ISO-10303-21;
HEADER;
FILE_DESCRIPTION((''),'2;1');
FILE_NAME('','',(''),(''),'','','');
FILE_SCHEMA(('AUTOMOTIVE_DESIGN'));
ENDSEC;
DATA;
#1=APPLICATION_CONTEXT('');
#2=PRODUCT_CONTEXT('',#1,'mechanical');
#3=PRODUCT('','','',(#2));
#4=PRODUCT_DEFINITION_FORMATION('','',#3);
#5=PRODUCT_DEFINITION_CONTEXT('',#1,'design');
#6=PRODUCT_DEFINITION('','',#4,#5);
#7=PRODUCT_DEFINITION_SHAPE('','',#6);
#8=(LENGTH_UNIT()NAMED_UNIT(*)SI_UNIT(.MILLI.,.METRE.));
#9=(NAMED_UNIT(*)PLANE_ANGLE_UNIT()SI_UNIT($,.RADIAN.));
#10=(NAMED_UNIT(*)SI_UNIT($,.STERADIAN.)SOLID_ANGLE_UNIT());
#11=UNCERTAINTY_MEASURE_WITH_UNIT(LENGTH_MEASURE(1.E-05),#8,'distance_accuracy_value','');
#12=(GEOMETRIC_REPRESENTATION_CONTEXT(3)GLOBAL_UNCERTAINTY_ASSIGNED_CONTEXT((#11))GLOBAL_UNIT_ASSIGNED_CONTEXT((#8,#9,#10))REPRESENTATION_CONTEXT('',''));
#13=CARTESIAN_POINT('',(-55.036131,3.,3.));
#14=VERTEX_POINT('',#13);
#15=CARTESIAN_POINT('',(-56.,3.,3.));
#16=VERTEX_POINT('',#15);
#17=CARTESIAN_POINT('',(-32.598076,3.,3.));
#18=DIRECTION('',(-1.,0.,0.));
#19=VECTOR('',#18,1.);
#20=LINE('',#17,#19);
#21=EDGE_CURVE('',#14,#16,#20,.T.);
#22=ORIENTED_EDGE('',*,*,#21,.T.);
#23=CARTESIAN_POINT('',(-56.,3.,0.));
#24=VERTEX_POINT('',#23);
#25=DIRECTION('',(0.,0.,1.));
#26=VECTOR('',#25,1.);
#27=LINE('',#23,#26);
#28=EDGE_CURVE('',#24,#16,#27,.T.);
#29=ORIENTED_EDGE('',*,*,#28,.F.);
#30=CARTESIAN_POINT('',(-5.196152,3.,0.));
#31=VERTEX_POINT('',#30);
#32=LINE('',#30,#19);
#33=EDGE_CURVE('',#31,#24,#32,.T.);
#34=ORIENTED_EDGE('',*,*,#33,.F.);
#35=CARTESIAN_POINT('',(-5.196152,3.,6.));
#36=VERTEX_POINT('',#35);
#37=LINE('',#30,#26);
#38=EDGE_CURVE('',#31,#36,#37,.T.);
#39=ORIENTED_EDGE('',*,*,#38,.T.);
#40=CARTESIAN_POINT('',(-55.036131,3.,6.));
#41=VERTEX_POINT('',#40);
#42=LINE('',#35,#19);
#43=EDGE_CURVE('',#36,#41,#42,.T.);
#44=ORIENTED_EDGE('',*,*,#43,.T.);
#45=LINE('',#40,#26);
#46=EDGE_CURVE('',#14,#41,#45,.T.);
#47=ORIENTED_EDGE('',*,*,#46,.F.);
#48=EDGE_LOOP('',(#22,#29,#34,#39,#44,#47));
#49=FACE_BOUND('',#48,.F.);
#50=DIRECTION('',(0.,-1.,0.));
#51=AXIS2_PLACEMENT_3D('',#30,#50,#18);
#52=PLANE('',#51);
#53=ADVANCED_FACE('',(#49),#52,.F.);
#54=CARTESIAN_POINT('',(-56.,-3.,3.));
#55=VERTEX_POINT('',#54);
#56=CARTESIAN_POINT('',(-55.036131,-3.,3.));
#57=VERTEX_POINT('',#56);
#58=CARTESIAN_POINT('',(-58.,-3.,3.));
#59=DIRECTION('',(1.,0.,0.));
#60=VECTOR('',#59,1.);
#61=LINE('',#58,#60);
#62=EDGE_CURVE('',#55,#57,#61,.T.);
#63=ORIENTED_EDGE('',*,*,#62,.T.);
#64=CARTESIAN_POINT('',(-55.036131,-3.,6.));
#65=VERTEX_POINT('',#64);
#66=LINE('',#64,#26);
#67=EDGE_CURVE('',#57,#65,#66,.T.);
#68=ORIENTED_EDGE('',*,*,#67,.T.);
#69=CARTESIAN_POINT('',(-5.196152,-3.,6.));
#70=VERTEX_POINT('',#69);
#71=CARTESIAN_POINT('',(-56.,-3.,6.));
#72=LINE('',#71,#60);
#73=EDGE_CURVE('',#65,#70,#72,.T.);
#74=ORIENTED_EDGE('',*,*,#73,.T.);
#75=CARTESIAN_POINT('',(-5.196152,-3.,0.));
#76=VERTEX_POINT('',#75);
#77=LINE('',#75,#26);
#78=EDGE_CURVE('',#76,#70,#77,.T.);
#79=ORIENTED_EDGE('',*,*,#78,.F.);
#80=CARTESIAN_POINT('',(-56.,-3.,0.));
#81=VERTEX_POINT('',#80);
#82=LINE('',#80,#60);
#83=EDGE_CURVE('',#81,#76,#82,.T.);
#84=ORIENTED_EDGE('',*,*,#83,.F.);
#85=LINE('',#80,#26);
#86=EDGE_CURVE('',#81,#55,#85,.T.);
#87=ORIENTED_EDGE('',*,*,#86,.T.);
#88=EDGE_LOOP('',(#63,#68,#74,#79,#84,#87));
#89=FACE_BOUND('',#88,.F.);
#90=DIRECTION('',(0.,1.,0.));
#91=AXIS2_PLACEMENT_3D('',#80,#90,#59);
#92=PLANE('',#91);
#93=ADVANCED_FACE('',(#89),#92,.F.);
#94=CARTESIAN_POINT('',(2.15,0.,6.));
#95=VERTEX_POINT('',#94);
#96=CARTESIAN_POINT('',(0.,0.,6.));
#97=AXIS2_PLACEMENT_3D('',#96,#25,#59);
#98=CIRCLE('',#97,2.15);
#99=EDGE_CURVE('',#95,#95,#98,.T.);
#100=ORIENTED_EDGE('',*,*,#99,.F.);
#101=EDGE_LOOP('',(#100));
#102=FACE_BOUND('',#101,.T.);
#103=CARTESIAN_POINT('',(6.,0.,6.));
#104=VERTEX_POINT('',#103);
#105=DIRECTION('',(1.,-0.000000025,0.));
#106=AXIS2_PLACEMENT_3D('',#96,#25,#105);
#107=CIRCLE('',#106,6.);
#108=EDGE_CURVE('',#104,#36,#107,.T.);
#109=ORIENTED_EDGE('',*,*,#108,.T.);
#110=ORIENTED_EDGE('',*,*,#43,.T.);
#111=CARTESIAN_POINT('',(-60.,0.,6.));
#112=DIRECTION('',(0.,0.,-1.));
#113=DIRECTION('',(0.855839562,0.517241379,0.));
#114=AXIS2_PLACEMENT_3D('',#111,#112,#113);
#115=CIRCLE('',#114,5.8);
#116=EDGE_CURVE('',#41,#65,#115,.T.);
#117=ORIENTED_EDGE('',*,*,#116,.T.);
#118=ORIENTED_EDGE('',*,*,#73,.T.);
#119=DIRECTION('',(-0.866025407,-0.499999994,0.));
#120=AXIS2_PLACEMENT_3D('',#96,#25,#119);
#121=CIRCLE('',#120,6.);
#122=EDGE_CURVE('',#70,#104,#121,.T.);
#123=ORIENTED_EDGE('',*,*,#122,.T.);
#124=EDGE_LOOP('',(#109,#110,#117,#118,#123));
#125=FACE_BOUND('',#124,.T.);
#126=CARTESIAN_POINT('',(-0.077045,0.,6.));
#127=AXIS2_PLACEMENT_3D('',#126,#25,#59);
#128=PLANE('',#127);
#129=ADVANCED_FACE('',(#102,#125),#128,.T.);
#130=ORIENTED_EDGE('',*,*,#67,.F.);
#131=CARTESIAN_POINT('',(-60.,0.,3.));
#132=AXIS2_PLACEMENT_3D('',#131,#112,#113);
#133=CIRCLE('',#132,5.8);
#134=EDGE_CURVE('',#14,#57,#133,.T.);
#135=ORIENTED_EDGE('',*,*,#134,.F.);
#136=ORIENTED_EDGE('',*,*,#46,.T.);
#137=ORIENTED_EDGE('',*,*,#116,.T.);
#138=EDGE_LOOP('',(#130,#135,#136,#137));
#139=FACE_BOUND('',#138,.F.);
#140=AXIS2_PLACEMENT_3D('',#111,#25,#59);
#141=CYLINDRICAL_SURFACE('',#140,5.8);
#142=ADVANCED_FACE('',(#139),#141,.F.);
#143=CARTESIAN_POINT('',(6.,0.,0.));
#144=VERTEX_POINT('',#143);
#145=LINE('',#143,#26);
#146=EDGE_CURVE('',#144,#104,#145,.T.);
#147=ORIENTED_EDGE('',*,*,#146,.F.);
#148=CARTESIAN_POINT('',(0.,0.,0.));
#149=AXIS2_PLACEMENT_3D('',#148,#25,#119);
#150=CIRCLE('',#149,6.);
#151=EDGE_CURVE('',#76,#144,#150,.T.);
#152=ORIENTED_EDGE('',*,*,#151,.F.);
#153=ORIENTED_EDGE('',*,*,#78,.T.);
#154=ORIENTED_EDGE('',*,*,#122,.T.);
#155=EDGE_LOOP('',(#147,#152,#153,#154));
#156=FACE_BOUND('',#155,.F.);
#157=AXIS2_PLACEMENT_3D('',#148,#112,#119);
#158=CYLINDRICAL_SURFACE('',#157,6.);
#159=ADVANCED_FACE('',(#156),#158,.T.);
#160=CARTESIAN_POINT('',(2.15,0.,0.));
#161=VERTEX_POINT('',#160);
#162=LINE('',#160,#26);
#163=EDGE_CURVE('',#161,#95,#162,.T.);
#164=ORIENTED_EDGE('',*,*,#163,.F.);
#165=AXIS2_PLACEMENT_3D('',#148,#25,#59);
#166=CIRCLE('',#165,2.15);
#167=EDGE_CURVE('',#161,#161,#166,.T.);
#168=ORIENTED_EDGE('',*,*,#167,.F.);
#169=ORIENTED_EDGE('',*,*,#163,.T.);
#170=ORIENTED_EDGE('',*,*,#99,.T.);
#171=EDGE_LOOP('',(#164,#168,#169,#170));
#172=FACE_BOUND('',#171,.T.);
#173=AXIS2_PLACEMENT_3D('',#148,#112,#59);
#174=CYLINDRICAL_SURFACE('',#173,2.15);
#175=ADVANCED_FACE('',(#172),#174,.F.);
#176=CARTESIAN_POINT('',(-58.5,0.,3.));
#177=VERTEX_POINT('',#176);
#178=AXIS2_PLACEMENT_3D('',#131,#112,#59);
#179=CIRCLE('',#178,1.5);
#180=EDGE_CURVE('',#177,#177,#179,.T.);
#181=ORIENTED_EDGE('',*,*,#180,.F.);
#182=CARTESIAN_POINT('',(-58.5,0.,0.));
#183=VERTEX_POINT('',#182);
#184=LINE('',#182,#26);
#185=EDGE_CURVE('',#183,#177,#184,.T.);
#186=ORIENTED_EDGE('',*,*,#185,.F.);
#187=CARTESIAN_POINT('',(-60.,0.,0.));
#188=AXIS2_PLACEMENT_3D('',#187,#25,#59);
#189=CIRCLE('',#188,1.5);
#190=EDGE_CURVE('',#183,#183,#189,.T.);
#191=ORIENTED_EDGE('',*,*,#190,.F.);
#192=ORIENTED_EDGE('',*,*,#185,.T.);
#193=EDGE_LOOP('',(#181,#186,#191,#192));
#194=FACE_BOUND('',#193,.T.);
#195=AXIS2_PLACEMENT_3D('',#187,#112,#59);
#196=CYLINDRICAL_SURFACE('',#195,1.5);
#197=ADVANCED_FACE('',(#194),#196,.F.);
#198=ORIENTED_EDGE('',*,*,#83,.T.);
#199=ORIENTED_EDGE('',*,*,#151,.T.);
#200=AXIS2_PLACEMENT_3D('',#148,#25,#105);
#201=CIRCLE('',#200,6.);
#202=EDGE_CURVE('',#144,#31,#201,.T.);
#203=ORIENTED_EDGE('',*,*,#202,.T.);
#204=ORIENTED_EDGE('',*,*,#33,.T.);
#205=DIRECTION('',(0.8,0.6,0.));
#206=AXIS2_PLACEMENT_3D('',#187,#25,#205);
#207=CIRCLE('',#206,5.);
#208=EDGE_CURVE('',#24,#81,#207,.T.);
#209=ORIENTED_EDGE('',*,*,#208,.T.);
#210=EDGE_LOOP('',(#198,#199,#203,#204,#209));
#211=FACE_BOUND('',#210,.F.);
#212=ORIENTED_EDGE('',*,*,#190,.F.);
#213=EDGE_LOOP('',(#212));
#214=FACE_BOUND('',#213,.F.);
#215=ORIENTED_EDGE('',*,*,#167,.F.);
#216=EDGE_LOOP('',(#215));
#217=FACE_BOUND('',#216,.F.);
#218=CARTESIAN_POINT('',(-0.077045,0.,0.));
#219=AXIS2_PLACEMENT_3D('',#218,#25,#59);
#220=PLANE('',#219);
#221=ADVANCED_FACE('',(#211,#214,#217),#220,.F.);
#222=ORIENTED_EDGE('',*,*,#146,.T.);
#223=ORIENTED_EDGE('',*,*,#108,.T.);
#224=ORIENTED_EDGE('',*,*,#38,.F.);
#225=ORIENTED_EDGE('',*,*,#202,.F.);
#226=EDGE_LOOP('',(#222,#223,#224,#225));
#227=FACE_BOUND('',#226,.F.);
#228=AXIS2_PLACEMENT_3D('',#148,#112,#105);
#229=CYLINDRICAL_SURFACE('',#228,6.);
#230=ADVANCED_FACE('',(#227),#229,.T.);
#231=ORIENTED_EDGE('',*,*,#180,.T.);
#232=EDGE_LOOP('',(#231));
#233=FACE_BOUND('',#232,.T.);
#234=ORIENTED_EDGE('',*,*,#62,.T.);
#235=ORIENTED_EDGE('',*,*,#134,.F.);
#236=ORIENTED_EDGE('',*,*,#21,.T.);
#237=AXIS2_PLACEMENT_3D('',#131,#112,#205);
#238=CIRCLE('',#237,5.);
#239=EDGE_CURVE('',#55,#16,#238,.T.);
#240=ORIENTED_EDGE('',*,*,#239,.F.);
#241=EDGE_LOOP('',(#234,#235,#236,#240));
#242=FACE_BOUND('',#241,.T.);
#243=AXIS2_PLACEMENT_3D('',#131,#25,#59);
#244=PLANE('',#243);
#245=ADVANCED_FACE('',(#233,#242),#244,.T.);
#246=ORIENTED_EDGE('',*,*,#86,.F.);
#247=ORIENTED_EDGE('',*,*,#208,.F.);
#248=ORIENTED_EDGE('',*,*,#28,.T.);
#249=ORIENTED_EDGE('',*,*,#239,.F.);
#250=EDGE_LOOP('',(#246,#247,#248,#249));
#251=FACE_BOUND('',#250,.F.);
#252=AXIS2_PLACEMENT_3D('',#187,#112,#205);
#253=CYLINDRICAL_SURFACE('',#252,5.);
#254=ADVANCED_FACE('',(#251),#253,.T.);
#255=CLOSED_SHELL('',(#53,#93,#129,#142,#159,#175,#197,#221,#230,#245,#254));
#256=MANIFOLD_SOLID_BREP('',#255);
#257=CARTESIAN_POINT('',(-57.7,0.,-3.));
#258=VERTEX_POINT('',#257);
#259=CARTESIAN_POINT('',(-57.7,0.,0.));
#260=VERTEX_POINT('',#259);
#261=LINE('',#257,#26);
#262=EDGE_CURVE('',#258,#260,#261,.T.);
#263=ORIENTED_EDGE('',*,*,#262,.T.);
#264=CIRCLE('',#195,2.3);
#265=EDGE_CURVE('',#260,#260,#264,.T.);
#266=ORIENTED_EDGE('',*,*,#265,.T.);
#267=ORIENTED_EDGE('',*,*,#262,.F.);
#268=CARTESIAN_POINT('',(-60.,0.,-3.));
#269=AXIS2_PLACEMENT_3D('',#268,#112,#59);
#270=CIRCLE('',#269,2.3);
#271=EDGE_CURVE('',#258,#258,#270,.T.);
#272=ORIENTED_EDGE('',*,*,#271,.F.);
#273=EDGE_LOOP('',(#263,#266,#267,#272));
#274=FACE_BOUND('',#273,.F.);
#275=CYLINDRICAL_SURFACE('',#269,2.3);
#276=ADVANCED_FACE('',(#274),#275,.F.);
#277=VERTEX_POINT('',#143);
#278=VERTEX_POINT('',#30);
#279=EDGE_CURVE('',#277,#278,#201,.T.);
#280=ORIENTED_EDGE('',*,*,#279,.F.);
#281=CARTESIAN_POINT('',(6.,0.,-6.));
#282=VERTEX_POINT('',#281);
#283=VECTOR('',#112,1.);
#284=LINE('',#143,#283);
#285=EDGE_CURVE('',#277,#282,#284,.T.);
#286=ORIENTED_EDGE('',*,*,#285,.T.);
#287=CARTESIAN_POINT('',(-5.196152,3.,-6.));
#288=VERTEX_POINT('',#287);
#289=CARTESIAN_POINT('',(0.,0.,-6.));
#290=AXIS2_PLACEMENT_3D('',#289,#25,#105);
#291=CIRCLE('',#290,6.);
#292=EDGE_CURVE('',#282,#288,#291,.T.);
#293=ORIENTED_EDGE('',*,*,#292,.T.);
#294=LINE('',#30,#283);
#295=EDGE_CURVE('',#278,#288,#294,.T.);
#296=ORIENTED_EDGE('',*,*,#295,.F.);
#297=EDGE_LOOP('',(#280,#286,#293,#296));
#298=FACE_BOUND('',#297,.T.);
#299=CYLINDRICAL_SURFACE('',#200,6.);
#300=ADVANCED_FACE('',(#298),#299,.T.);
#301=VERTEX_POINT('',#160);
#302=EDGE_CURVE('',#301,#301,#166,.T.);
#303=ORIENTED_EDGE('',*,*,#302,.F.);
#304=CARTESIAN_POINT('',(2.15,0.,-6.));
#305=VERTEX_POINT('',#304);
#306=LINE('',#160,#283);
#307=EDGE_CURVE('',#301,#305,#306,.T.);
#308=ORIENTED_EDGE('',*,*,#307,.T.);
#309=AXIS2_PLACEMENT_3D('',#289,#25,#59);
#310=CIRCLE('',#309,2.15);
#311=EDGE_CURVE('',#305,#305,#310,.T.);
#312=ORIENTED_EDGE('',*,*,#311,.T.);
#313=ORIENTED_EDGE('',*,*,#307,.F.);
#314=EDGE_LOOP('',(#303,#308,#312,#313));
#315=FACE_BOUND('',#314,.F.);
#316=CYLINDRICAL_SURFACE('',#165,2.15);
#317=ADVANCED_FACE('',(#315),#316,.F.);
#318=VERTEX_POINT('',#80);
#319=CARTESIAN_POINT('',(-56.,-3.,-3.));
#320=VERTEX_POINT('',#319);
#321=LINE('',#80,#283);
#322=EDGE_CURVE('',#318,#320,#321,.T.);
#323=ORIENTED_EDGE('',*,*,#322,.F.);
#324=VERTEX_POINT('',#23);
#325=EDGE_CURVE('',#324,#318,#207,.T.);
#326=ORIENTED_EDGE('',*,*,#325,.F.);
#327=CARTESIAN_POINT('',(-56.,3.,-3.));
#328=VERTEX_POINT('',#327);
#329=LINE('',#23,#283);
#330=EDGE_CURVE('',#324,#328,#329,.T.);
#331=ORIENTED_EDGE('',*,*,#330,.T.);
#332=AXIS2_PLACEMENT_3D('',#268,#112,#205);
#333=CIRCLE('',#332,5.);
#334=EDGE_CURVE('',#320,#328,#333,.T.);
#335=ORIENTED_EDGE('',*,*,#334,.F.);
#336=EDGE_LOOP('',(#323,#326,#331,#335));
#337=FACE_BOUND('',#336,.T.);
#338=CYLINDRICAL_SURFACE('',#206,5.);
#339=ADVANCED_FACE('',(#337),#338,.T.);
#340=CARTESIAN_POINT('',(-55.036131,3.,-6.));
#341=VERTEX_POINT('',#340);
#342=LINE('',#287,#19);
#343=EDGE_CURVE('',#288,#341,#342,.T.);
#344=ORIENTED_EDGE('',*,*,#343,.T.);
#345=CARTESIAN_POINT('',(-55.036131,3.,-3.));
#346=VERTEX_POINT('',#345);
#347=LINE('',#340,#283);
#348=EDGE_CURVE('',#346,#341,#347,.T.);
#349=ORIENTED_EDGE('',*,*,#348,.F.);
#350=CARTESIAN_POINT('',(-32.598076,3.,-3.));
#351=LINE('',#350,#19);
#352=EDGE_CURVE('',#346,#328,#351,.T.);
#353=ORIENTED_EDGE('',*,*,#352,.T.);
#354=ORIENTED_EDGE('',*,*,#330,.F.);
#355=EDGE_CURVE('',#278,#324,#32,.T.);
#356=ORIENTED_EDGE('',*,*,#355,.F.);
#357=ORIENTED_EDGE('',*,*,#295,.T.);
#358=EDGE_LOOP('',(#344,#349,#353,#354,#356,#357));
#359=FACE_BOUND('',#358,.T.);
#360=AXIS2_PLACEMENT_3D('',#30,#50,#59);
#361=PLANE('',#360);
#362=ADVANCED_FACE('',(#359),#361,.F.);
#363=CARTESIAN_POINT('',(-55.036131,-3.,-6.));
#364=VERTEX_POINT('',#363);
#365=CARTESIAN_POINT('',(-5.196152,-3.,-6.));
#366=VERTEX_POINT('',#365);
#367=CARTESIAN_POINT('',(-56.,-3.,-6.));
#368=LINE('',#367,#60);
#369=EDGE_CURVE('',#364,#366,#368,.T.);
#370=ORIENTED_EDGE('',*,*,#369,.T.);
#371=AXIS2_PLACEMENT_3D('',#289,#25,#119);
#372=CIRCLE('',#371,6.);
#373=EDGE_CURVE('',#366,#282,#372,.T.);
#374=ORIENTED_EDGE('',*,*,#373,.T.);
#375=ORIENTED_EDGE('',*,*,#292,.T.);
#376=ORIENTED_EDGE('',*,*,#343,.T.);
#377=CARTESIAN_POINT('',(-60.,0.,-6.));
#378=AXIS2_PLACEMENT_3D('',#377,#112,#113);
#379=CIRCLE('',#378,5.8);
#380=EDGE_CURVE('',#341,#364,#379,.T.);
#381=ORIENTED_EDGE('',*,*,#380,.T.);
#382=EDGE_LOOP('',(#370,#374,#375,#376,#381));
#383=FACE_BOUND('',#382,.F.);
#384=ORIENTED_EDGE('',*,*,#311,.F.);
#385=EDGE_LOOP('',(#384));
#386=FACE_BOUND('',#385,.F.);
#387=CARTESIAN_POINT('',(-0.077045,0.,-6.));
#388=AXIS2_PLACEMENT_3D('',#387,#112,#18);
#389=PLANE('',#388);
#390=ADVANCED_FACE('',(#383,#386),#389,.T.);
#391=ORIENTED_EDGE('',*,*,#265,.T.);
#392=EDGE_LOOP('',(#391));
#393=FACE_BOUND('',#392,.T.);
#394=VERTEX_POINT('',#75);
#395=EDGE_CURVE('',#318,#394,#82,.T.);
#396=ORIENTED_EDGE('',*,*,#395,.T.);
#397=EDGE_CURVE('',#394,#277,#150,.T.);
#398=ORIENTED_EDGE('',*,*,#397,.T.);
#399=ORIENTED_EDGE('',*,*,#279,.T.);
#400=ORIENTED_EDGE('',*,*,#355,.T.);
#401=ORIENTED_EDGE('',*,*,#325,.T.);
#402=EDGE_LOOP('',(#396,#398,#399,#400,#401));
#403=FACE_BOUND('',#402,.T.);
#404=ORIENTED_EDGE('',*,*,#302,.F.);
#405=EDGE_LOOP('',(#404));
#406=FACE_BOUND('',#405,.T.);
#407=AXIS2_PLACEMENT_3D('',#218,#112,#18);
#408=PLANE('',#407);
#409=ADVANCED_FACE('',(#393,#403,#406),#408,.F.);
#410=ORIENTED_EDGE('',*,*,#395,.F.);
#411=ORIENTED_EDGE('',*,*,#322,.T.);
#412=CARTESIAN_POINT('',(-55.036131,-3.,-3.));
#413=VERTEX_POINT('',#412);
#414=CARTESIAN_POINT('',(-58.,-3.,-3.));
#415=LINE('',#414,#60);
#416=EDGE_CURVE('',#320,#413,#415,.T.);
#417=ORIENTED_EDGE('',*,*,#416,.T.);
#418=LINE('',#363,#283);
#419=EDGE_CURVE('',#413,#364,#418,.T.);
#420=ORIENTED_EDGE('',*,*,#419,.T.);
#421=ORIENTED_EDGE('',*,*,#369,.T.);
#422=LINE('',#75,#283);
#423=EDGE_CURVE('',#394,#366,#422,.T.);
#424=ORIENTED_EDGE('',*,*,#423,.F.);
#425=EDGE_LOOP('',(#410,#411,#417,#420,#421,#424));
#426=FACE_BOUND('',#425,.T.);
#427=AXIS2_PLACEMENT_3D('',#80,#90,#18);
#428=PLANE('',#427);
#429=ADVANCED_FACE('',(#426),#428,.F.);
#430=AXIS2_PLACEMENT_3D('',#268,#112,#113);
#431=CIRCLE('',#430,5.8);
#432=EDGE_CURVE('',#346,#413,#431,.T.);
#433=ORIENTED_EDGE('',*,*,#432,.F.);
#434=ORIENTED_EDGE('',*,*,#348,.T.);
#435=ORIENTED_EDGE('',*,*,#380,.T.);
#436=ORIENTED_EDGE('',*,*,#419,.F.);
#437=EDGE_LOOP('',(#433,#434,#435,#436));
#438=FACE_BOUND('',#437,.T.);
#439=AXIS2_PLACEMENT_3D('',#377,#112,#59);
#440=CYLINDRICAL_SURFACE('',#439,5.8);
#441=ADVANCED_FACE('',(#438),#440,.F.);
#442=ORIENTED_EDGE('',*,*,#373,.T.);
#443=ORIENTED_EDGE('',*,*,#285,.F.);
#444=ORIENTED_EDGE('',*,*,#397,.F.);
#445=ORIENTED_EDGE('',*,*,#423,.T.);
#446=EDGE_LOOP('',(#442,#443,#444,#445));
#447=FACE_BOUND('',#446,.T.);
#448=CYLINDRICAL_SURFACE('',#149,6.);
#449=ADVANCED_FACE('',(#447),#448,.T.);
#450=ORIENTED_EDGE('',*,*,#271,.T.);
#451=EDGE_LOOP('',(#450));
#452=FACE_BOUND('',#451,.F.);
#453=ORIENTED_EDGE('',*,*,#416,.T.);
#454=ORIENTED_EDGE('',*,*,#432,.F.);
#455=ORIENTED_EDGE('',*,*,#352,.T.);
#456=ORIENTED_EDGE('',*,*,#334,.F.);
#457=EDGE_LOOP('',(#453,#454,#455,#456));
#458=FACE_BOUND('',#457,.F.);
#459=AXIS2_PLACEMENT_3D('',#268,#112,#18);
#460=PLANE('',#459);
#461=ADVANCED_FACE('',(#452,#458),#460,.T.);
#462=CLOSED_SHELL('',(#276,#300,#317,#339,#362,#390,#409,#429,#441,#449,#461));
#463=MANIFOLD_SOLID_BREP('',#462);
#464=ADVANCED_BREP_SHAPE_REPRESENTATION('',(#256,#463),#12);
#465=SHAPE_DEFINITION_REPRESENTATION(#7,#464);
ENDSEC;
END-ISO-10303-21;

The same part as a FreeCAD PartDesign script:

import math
import FreeCAD as App
import Part
import Sketcher
Q = App.Units.Quantity

doc = App.newDocument("Part")
body = doc.addObject("PartDesign::Body", "Body")

# Sketch on XY plane
sketch1 = body.newObject("Sketcher::SketchObject", "Sketch")
sketch1.AttachmentSupport = (doc.getObject("XY_Plane"), [""])
sketch1.MapMode = "FlatFace"
sketch1.addGeometry([
    Part.ArcOfCircle(Part.Circle(App.Vector(0, 0, 0), App.Vector(0, 0, 1), 6), math.radians(-150), math.radians(0.000001)),  # 0
    Part.ArcOfCircle(Part.Circle(App.Vector(0, 0, 0), App.Vector(0, 0, 1), 6), math.radians(-0.000001), math.radians(150)),  # 1
    Part.LineSegment(App.Vector(-5.196152, 3, 0), App.Vector(-56, 3, 0)),  # 2
    Part.ArcOfCircle(Part.Circle(App.Vector(-60, 0, 0), App.Vector(0, 0, 1), 5), math.radians(36.869898), math.radians(323.130102)),  # 3
    Part.LineSegment(App.Vector(-56, -3, 0), App.Vector(-5.196152, -3, 0)),  # 4
    Part.Circle(App.Vector(-60, 0, 0), App.Vector(0, 0, 1), 1.5),  # 5
    Part.Circle(App.Vector(0, 0, 0), App.Vector(0, 0, 1), 2.15),  # 6
], False)
sketch1.addConstraint([
    Sketcher.Constraint("Tangent", 0, 2, 1, 1),
    Sketcher.Constraint("Coincident", 1, 2, 2, 1),
    Sketcher.Constraint("Coincident", 2, 2, 3, 1),
    Sketcher.Constraint("Coincident", 3, 2, 4, 1),
    Sketcher.Constraint("Coincident", 4, 2, 0, 1),
    Sketcher.Constraint("Horizontal", 2),
    Sketcher.Constraint("Horizontal", 4),
    Sketcher.Constraint("Coincident", 0, 3, -1, 1),
    Sketcher.Constraint("Coincident", 6, 3, -1, 1),
    Sketcher.Constraint("Coincident", 5, 3, 3, 3),
    Sketcher.Constraint("Equal", 0, 1),
    Sketcher.Constraint("Symmetric", 2, 2, 3, 2, -1),
    Sketcher.Constraint("PointOnObject", 0, 2, -1),
    Sketcher.Constraint("Diameter", 5, Q("3 mm")),
    Sketcher.Constraint("Radius", 0, Q("6 mm")),
    Sketcher.Constraint("Radius", 3, Q("5 mm")),
    Sketcher.Constraint("Diameter", 6, Q("4.3 mm")),
    Sketcher.Constraint("DistanceX", 3, 3, -1, 1, Q("60 mm")),
    Sketcher.Constraint("DistanceY", -1, 1, 1, 2, Q("3 mm")),
])
pad1 = body.newObject("PartDesign::Pad", "Pad")
pad1.Profile = sketch1
pad1.Length = 6

# Sketch on XY plane
sketch2 = body.newObject("Sketcher::SketchObject", "Sketch001")
sketch2.AttachmentSupport = (doc.getObject("XY_Plane"), [""])
sketch2.MapMode = "FlatFace"
sketch2.AttachmentOffset = App.Placement(App.Vector(0, 0, 6), App.Rotation())
sketch2.addGeometry(Part.Circle(App.Vector(-60, 0, 0), App.Vector(0, 0, 1), 5.8), False)
sketch2.addConstraint([
    Sketcher.Constraint("PointOnObject", 0, 3, -1),
    Sketcher.Constraint("Diameter", 0, Q("11.6 mm")),
    Sketcher.Constraint("DistanceX", 0, 3, -1, 1, Q("60 mm")),
])
pocket1 = body.newObject("PartDesign::Pocket", "Pocket")
pocket1.Profile = sketch2
pocket1.Length = 3
body2 = doc.addObject("PartDesign::Body", "Body001")
doc.recompute()

mirroring = doc.addObject("Part::Mirroring", "Mirroring")
mirroring.Source = body
mirroring.Base = App.Vector(-28.597693, 0, 0)
mirroring.Normal = App.Vector(0, 0, -1)
body2.BaseFeature = mirroring
doc.recompute()

# Sketch on XY plane
sketch3 = body2.newObject("Sketcher::SketchObject", "Sketch002")
sketch3.AttachmentSupport = (doc.getObject("XY_Plane001"), [""])
sketch3.MapMode = "FlatFace"
sketch3.AttachmentOffset = App.Placement(App.Vector(0, 0, -3), App.Rotation())
sketch3.addGeometry(Part.Circle(App.Vector(-60, 0, 0), App.Vector(0, 0, 1), 2.3), False)
sketch3.addConstraint([
    Sketcher.Constraint("PointOnObject", 0, 3, -1),
    Sketcher.Constraint("Diameter", 0, Q("4.6 mm")),
    Sketcher.Constraint("DistanceX", 0, 3, -1, 1, Q("60 mm")),
])
pocket2 = body2.newObject("PartDesign::Pocket", "Pocket001")
pocket2.Profile = sketch3
pocket2.Type = "ThroughAll"
pocket2.Reversed = True
mirroring.Visibility = False

doc.recompute()
